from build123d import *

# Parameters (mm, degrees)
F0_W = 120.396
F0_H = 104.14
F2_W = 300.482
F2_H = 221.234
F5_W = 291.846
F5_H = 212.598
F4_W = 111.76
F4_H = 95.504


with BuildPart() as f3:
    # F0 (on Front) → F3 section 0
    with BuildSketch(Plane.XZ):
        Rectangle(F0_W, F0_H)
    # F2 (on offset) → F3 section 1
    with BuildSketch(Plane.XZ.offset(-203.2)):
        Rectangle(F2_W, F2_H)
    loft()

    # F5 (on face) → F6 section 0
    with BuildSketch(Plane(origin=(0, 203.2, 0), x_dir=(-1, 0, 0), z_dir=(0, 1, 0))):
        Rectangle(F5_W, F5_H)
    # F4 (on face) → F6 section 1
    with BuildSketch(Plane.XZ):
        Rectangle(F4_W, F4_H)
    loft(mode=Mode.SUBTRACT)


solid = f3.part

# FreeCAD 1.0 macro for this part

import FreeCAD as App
import Part
import Sketcher

V = App.Vector
Q = App.Units.Quantity


def add_polygon(sketch, points):
    """Adds a closed chain of lines whose ends are joined by coincident constraints."""
    first, n = sketch.GeometryCount, len(points)
    for a, b in zip(points, points[1:] + points[:1]):
        sketch.addGeometry(Part.LineSegment(App.Vector(*a, 0), App.Vector(*b, 0)), False)
    for i in range(n):
        sketch.addConstraint(Sketcher.Constraint("Coincident", first + i, 2, first + (i + 1) % n, 1))

doc = App.newDocument("Part")
body = doc.addObject("PartDesign::Body", "Body")

# Sketch on XZ plane
sketch1 = doc.addObject("Sketcher::SketchObject", "Sketch")
body.addObject(sketch1)
sketch1.AttachmentSupport = (doc.XZ_Plane, [""])
sketch1.MapMode = "FlatFace"
add_polygon(sketch1, [(-60, 52), (-60, -52), (60, -52), (60, 52)])  # lines 0-3
sketch1.addConstraint(Sketcher.Constraint("Vertical", 0))
sketch1.addConstraint(Sketcher.Constraint("Horizontal", 1))
sketch1.addConstraint(Sketcher.Constraint("Vertical", 2))
sketch1.addConstraint(Sketcher.Constraint("Horizontal", 3))
sketch1.addConstraint(Sketcher.Constraint("Symmetric", 0, 2, 2, 2, -1, 1))
sketch1.addConstraint(Sketcher.Constraint("DistanceY", 0, 2, 0, 1, Q("4.1 in")))
sketch1.addConstraint(Sketcher.Constraint("DistanceX", 1, 1, 1, 2, Q("4.74 in")))

# Sketch on XZ plane
sketch2 = doc.addObject("Sketcher::SketchObject", "Sketch001")
body.addObject(sketch2)
sketch2.AttachmentSupport = (doc.XZ_Plane, [""])
sketch2.MapMode = "FlatFace"
sketch2.AttachmentOffset = App.Placement(V(0, 0, -8 * 25.4), App.Rotation())
add_polygon(sketch2, [(-150, 111), (-150, -111), (150, -111), (150, 111)])  # lines 0-3
sketch2.addConstraint(Sketcher.Constraint("Vertical", 0))
sketch2.addConstraint(Sketcher.Constraint("Horizontal", 1))
sketch2.addConstraint(Sketcher.Constraint("Vertical", 2))
sketch2.addConstraint(Sketcher.Constraint("Horizontal", 3))
sketch2.addConstraint(Sketcher.Constraint("Symmetric", 0, 2, 2, 2, -1, 1))
sketch2.addConstraint(Sketcher.Constraint("DistanceX", 1, 1, 1, 2, Q("11.83 in")))
sketch2.addConstraint(Sketcher.Constraint("DistanceY", 0, 2, 0, 1, Q("8.71 in")))

additiveloft = doc.addObject("PartDesign::AdditiveLoft", "AdditiveLoft")
body.addObject(additiveloft)
additiveloft.Profile = sketch1
additiveloft.Sections = [sketch2]

# Sketch on XZ plane
sketch3 = doc.addObject("Sketcher::SketchObject", "Sketch002")
body.addObject(sketch3)
sketch3.AttachmentSupport = (doc.XZ_Plane, [""])
sketch3.MapMode = "FlatFace"
sketch3.AttachmentOffset = App.Placement(V(0, 0, -8 * 25.4), App.Rotation())
add_polygon(sketch3, [(146, 106), (146, -106), (-146, -106), (-146, 106)])  # lines 0-3
sketch3.addConstraint(Sketcher.Constraint("Vertical", 0))
sketch3.addConstraint(Sketcher.Constraint("Horizontal", 1))
sketch3.addConstraint(Sketcher.Constraint("Vertical", 2))
sketch3.addConstraint(Sketcher.Constraint("Horizontal", 3))
sketch3.addConstraint(Sketcher.Constraint("Symmetric", 0, 2, 2, 2, -1, 1))
sketch3.addConstraint(Sketcher.Constraint("DistanceX", 1, 2, 1, 1, Q("11.49 in")))
sketch3.addConstraint(Sketcher.Constraint("DistanceY", 0, 2, 0, 1, Q("8.37 in")))

# Sketch on XZ plane
sketch4 = doc.addObject("Sketcher::SketchObject", "Sketch003")
body.addObject(sketch4)
sketch4.AttachmentSupport = (doc.XZ_Plane, [""])
sketch4.MapMode = "FlatFace"
add_polygon(sketch4, [(-56, 48), (-56, -48), (56, -48), (56, 48)])  # lines 0-3
sketch4.addConstraint(Sketcher.Constraint("Vertical", 0))
sketch4.addConstraint(Sketcher.Constraint("Horizontal", 1))
sketch4.addConstraint(Sketcher.Constraint("Vertical", 2))
sketch4.addConstraint(Sketcher.Constraint("Horizontal", 3))
sketch4.addConstraint(Sketcher.Constraint("Symmetric", 0, 2, 2, 2, -1, 1))
sketch4.addConstraint(Sketcher.Constraint("DistanceX", 1, 1, 1, 2, Q("4.4 in")))
sketch4.addConstraint(Sketcher.Constraint("DistanceY", 0, 2, 0, 1, Q("3.76 in")))

subtractiveloft = doc.addObject("PartDesign::SubtractiveLoft", "SubtractiveLoft")
body.addObject(subtractiveloft)
subtractiveloft.Profile = sketch3
subtractiveloft.Sections = [sketch4]

doc.recompute()
